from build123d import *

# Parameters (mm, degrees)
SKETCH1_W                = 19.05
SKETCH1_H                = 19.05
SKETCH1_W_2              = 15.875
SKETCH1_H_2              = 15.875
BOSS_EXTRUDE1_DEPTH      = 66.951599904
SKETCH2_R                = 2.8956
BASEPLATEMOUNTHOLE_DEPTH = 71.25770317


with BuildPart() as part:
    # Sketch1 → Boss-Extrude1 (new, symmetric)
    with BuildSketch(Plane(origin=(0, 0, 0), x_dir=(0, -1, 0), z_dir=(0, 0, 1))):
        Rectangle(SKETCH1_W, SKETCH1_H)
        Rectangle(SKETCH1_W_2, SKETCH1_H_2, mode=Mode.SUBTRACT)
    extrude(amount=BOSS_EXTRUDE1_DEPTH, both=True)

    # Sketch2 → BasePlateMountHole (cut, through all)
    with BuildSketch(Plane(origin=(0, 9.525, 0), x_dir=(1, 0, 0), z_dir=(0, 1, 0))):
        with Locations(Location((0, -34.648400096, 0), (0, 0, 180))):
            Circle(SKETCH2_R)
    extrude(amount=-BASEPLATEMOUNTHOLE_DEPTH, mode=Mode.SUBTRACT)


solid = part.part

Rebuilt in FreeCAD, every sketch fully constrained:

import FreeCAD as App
import Part
import Sketcher
Q = App.Units.Quantity

doc = App.newDocument("Part")
body = doc.addObject("PartDesign::Body", "Body")

# Sketch on XY plane
sketch1 = body.newObject("Sketcher::SketchObject", "Sketch")
sketch1.AttachmentSupport = (doc.getObject("XY_Plane"), [""])
sketch1.MapMode = "FlatFace"
sketch1.addGeometry(Part.LineSegment(App.Vector(10, 10, 0), App.Vector(-10, 10, 0)), False)
sketch1.addGeometry(Part.LineSegment(App.Vector(-10, 10, 0), App.Vector(-10, -10, 0)), False)
sketch1.addGeometry(Part.LineSegment(App.Vector(-10, -10, 0), App.Vector(10, -10, 0)), False)
sketch1.addGeometry(Part.LineSegment(App.Vector(10, -10, 0), App.Vector(10, 10, 0)), False)
sketch1.addGeometry(Part.LineSegment(App.Vector(-8, -8, 0), App.Vector(-8, 8, 0)), False)
sketch1.addGeometry(Part.LineSegment(App.Vector(-8, 8, 0), App.Vector(8, 8, 0)), False)
sketch1.addGeometry(Part.LineSegment(App.Vector(8, 8, 0), App.Vector(8, -8, 0)), False)
sketch1.addGeometry(Part.LineSegment(App.Vector(8, -8, 0), App.Vector(-8, -8, 0)), False)
sketch1.addConstraint(Sketcher.Constraint("Coincident", 0, 2, 1, 1))
sketch1.addConstraint(Sketcher.Constraint("Coincident", 1, 2, 2, 1))
sketch1.addConstraint(Sketcher.Constraint("Coincident", 2, 2, 3, 1))
sketch1.addConstraint(Sketcher.Constraint("Coincident", 3, 2, 0, 1))
sketch1.addConstraint(Sketcher.Constraint("Coincident", 4, 2, 5, 1))
sketch1.addConstraint(Sketcher.Constraint("Coincident", 5, 2, 6, 1))
sketch1.addConstraint(Sketcher.Constraint("Coincident", 6, 2, 7, 1))
sketch1.addConstraint(Sketcher.Constraint("Coincident", 7, 2, 4, 1))
sketch1.addConstraint(Sketcher.Constraint("Horizontal", 0))
sketch1.addConstraint(Sketcher.Constraint("Vertical", 1))
sketch1.addConstraint(Sketcher.Constraint("Horizontal", 2))
sketch1.addConstraint(Sketcher.Constraint("Vertical", 3))
sketch1.addConstraint(Sketcher.Constraint("Vertical", 4))
sketch1.addConstraint(Sketcher.Constraint("Horizontal", 5))
sketch1.addConstraint(Sketcher.Constraint("Vertical", 6))
sketch1.addConstraint(Sketcher.Constraint("Horizontal", 7))
sketch1.addConstraint(Sketcher.Constraint("Symmetric", 0, 2, 2, 2, -1, 1))
sketch1.addConstraint(Sketcher.Constraint("Symmetric", 4, 2, 6, 2, -1, 1))
sketch1.addConstraint(Sketcher.Constraint("Equal", 2, 1))
sketch1.addConstraint(Sketcher.Constraint("Equal", 7, 4))
sketch1.addConstraint(Sketcher.Constraint("DistanceX", 0, 2, 0, 1, Q("0.75 in")))
sketch1.addConstraint(Sketcher.Constraint("DistanceX", 5, 1, 5, 2, Q("0.625 in")))
pad1 = body.newObject("PartDesign::Pad", "Pad")
pad1.Profile = sketch1
pad1.Length = 133.9032
pad1.Midplane = True

# Sketch on XZ plane
sketch2 = body.newObject("Sketcher::SketchObject", "Sketch001")
sketch2.AttachmentSupport = (doc.getObject("XZ_Plane"), [""])
sketch2.MapMode = "FlatFace"
sketch2.AttachmentOffset = App.Placement(App.Vector(0, 0, -0.375 * 25.4), App.Rotation())
sketch2.addGeometry(Part.Circle(App.Vector(0, 34.6, 0), App.Vector(0, 0, 1), 2.9), False)
sketch2.addConstraint(Sketcher.Constraint("PointOnObject", 0, 3, -2))
sketch2.addConstraint(Sketcher.Constraint("Diameter", 0, Q("0.228 in")))
sketch2.addConstraint(Sketcher.Constraint("DistanceY", -1, 1, 0, 3, 34.6484))
pocket1 = body.newObject("PartDesign::Pocket", "Pocket")
pocket1.Profile = sketch2
pocket1.Type = "ThroughAll"
pocket1.Reversed = True

doc.recompute()
